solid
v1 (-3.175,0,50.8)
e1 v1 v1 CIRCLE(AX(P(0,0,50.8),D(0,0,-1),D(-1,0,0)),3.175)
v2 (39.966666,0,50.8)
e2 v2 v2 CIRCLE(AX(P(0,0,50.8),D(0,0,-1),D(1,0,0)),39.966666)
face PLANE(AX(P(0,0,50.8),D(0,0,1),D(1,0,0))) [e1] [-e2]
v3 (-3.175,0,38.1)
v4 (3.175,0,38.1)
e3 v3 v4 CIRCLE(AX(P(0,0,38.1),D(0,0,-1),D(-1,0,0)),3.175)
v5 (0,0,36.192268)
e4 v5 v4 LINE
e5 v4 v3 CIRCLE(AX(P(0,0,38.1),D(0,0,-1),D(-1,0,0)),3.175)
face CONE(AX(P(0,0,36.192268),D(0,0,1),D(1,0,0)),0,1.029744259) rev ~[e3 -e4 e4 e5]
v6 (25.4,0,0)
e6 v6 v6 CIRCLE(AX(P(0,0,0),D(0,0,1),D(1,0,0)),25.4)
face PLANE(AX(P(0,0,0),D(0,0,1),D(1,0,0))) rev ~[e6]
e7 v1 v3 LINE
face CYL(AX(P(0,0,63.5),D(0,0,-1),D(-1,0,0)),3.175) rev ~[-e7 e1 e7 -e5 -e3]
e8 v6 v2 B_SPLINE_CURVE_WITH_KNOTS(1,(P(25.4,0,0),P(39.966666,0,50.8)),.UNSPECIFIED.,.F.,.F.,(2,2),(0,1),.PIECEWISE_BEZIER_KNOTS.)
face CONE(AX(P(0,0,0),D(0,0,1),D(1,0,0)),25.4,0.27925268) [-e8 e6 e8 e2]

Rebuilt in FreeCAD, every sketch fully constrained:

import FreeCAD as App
import Part
import Sketcher

V = App.Vector
Q = App.Units.Quantity

doc = App.newDocument("Part")
body = doc.addObject("PartDesign::Body", "Body")

sketch1 = body.newObject("Sketcher::SketchObject", "Sketch")
sketch1.AttachmentSupport = (doc.getObject("XY_Plane"), [""])
sketch1.MapMode = "FlatFace"
sketch1.addGeometry(Part.Circle(V(0, 0, 0), V(0, 0, 1), 25.4), False)
sketch1.addConstraint([
    Sketcher.Constraint("Coincident", 0, 3, -1, 1),
    Sketcher.Constraint("Diameter", 0, Q("2 in")),
])
pad1 = body.newObject("PartDesign::Pad", "Pad")
pad1.Profile = sketch1
pad1.Length = Q("2 in")
pad1.TaperAngle = 16

sketch2 = body.newObject("Sketcher::SketchObject", "Sketch001")
sketch2.AttachmentSupport = (doc.getObject("XY_Plane"), [""])
sketch2.MapMode = "FlatFace"
sketch2.AttachmentOffset = App.Placement(V(0, 0, 2 * 25.4), App.Rotation())
sketch2.addGeometry(Part.Circle(V(0, 0, 0), V(0, 0, 1), 3.175), False)
sketch2.addConstraint([
    Sketcher.Constraint("Coincident", 0, 3, -1, 1),
    Sketcher.Constraint("Diameter", 0, Q("0.25 in")),
])
doc.recompute()
hole = body.newObject("PartDesign::Hole", "Hole")
hole.Profile = sketch2
hole.ThreadType = "None"
hole.Diameter = Q("0.25 in")
hole.DepthType = "Dimension"
hole.Depth = Q("0.5 in")
hole.DrillPoint = "Angled"
hole.DrillPointAngle = 118

doc.recompute()
